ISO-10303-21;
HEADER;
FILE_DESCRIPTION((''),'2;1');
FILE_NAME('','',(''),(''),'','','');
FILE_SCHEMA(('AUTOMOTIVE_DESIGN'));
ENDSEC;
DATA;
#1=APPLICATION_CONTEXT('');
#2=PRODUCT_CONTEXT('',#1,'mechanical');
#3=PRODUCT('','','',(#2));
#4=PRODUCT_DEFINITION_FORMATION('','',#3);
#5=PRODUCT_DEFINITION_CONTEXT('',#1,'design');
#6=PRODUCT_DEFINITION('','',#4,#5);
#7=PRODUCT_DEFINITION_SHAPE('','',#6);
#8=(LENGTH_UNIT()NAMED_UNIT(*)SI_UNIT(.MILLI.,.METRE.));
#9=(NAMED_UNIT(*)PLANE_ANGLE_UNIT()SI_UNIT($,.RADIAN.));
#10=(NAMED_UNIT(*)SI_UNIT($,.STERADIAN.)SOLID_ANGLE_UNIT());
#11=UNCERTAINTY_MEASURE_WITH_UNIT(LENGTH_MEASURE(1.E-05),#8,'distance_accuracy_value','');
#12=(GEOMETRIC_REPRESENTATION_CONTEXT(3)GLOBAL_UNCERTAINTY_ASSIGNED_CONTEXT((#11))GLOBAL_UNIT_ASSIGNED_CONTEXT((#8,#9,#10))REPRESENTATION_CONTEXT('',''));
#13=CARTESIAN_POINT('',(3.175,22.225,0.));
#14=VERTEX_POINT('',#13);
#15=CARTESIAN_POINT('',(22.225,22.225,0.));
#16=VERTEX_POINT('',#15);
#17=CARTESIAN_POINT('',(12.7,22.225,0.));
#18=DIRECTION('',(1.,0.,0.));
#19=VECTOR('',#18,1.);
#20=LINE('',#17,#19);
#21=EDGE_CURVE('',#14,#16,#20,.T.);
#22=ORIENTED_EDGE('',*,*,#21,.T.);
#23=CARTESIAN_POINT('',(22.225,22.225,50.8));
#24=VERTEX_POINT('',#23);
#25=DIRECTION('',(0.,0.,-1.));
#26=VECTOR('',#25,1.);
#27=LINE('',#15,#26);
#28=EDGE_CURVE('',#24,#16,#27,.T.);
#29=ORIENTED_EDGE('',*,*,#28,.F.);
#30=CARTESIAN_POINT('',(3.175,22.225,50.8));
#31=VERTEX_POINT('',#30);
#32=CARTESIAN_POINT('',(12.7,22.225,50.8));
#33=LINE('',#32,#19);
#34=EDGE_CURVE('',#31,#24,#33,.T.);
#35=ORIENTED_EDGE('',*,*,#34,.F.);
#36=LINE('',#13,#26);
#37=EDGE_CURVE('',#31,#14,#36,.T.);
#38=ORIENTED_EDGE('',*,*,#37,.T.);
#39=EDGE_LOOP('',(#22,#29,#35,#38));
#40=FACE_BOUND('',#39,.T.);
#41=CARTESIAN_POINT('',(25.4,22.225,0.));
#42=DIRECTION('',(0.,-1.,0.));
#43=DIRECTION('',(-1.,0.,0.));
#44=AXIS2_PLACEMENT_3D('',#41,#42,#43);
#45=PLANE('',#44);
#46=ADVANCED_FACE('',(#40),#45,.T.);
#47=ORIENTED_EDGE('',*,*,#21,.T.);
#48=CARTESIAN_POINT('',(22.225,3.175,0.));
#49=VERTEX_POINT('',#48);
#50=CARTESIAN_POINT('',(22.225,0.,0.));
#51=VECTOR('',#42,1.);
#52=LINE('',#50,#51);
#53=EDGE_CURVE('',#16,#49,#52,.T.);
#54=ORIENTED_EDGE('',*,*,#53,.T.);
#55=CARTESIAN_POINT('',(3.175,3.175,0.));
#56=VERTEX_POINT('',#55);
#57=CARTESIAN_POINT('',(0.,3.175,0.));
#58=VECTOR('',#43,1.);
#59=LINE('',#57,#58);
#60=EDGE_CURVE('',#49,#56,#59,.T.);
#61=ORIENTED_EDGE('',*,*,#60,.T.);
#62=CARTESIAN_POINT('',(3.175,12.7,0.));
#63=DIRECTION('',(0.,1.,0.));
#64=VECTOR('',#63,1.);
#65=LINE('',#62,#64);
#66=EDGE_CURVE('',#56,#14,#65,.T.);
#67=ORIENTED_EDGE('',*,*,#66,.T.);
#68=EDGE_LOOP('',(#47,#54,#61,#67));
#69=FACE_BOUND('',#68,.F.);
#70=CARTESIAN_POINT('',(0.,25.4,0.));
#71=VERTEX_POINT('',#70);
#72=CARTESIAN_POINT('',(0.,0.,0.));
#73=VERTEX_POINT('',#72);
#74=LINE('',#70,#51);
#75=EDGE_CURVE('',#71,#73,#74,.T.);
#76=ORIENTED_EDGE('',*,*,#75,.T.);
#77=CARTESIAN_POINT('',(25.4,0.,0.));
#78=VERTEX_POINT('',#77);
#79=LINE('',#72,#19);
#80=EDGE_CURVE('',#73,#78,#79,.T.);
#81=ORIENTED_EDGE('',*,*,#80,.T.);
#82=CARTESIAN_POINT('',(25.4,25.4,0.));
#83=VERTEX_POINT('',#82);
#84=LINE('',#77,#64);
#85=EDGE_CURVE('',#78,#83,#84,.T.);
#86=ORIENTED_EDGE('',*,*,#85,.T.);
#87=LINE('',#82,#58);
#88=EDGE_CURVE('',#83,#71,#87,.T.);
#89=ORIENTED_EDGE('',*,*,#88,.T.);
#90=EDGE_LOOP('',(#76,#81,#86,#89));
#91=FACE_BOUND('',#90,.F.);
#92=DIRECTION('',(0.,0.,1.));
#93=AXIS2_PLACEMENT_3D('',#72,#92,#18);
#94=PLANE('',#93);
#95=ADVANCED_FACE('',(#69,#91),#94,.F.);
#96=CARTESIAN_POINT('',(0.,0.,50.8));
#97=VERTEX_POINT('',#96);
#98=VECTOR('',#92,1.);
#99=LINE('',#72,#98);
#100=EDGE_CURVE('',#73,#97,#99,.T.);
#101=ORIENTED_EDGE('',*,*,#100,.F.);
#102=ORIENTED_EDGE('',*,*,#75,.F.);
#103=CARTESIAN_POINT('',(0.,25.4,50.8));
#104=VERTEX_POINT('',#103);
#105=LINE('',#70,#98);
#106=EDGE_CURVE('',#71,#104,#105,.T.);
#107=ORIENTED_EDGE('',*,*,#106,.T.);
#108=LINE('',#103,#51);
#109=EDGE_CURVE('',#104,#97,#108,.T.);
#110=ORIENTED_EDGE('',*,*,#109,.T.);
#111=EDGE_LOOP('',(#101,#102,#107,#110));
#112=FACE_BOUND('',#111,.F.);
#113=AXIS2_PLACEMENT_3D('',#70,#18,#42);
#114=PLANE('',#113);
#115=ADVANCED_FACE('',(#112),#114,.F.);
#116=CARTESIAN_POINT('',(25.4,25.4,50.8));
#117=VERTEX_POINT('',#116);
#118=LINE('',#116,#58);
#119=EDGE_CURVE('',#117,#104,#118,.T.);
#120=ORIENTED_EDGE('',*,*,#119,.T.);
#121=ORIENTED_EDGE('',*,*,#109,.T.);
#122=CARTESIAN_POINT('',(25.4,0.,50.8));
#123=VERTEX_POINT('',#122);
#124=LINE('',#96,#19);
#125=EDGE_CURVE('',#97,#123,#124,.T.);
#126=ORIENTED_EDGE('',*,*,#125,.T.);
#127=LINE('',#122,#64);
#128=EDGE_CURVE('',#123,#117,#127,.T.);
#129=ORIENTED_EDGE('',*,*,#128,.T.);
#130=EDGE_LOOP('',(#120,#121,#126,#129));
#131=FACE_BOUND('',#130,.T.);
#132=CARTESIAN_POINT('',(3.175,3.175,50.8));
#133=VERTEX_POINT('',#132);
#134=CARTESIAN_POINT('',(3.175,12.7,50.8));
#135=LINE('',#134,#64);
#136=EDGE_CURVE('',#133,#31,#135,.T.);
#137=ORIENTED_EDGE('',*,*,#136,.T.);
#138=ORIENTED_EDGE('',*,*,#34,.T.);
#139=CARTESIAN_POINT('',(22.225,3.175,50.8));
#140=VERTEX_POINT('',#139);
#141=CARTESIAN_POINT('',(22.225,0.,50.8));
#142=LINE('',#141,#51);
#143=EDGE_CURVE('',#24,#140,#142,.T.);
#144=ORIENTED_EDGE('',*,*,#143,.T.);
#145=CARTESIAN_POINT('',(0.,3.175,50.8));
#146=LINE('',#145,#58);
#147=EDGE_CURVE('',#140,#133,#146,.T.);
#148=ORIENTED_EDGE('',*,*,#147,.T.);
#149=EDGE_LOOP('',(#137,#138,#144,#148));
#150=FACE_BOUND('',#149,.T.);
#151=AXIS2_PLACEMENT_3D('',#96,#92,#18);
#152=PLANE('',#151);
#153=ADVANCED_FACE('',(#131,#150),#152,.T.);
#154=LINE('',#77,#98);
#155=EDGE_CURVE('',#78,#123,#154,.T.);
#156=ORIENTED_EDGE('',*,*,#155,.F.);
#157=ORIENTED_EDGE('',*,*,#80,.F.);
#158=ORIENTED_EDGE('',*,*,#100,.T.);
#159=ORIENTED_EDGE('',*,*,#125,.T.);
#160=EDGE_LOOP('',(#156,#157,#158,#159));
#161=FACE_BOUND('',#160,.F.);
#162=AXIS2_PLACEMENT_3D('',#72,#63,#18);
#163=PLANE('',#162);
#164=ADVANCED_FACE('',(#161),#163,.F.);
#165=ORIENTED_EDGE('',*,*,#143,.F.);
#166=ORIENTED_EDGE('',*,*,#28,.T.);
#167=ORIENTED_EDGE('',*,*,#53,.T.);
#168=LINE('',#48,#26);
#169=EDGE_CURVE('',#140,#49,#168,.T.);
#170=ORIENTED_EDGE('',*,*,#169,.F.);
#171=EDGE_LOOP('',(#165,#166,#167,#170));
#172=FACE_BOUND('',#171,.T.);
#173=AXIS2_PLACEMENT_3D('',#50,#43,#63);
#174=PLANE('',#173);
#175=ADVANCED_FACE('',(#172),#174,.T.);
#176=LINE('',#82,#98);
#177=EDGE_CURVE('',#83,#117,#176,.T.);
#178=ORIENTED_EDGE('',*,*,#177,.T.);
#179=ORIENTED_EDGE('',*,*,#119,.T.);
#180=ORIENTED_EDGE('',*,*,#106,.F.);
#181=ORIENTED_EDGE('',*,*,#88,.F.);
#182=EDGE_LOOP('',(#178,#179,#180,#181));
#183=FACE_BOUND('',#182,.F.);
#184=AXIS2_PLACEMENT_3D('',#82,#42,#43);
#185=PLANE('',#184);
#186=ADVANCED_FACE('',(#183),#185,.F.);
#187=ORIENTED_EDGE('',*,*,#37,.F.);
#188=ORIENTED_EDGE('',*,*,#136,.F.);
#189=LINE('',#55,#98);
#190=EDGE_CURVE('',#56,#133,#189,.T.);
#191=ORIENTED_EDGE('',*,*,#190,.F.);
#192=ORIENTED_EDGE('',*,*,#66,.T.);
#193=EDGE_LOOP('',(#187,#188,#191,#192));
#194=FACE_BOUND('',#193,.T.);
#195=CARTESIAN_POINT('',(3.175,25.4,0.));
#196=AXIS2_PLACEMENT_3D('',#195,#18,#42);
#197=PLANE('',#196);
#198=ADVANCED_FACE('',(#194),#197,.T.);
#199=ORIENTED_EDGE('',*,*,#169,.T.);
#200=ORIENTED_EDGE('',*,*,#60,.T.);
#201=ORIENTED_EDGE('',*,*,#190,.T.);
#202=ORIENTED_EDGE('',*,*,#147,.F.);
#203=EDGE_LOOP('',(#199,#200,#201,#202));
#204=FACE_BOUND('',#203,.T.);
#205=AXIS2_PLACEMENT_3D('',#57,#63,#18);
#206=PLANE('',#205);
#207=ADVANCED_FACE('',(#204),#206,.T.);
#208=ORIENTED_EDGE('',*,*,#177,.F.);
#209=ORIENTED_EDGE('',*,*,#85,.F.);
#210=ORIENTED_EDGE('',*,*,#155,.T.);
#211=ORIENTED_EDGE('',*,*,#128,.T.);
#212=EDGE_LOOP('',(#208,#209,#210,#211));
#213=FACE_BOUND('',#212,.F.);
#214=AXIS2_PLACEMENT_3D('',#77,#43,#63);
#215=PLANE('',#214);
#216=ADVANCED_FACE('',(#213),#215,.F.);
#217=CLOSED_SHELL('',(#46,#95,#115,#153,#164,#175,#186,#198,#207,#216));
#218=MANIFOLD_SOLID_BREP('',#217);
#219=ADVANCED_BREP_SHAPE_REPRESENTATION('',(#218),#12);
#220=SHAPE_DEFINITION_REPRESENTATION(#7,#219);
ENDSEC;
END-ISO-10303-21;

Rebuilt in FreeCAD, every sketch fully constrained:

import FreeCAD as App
import Part
import Sketcher

V = App.Vector
Q = App.Units.Quantity


def faces_at(feature, points):
    """Names of the faces that lie closest to the given points."""
    faces = feature.Shape.Faces
    near = lambda p: min(range(len(faces)), key=lambda i: faces[i].distToShape(Part.Vertex(*p))[0])
    return sorted({f"Face{near(p) + 1}" for p in points})


def add_polygon(sketch, points):
    """Adds a closed chain of lines whose ends are joined by coincident constraints."""
    first, n = sketch.GeometryCount, len(points)
    for a, b in zip(points, points[1:] + points[:1]):
        sketch.addGeometry(Part.LineSegment(App.Vector(*a, 0), App.Vector(*b, 0)), False)
    for i in range(n):
        sketch.addConstraint(Sketcher.Constraint("Coincident", first + i, 2, first + (i + 1) % n, 1))

doc = App.newDocument("Part")
body = doc.addObject("PartDesign::Body", "Body")

# Sketch on XY plane
sketch1 = doc.addObject("Sketcher::SketchObject", "Sketch")
body.addObject(sketch1)
sketch1.AttachmentSupport = (doc.XY_Plane, [""])
sketch1.MapMode = "FlatFace"
add_polygon(sketch1, [(0, 25), (0, 0), (25, 0), (25, 25)])  # lines 0-3
sketch1.addConstraint([
    Sketcher.Constraint("Vertical", 0),
    Sketcher.Constraint("Horizontal", 1),
    Sketcher.Constraint("Vertical", 2),
    Sketcher.Constraint("Horizontal", 3),
    Sketcher.Constraint("Coincident", 0, 2, -1, 1),
    Sketcher.Constraint("Equal", 3, 0),
    Sketcher.Constraint("DistanceX", 1, 1, 1, 2, Q("1 in")),
])
pad1 = doc.addObject("PartDesign::Pad", "Pad")
body.addObject(pad1)
pad1.Profile = sketch1
pad1.Length = Q("2 in")
doc.recompute()

thickness = doc.addObject("PartDesign::Thickness", "Thickness")
body.addObject(thickness)
thickness.Base = (pad1, faces_at(pad1, [(8.467, 16.933, 0), (8.467, 16.933, 50.8)]))
thickness.Value = Q("0.125 in")
thickness.Reversed = True
thickness.Join = "Intersection"

doc.recompute()
